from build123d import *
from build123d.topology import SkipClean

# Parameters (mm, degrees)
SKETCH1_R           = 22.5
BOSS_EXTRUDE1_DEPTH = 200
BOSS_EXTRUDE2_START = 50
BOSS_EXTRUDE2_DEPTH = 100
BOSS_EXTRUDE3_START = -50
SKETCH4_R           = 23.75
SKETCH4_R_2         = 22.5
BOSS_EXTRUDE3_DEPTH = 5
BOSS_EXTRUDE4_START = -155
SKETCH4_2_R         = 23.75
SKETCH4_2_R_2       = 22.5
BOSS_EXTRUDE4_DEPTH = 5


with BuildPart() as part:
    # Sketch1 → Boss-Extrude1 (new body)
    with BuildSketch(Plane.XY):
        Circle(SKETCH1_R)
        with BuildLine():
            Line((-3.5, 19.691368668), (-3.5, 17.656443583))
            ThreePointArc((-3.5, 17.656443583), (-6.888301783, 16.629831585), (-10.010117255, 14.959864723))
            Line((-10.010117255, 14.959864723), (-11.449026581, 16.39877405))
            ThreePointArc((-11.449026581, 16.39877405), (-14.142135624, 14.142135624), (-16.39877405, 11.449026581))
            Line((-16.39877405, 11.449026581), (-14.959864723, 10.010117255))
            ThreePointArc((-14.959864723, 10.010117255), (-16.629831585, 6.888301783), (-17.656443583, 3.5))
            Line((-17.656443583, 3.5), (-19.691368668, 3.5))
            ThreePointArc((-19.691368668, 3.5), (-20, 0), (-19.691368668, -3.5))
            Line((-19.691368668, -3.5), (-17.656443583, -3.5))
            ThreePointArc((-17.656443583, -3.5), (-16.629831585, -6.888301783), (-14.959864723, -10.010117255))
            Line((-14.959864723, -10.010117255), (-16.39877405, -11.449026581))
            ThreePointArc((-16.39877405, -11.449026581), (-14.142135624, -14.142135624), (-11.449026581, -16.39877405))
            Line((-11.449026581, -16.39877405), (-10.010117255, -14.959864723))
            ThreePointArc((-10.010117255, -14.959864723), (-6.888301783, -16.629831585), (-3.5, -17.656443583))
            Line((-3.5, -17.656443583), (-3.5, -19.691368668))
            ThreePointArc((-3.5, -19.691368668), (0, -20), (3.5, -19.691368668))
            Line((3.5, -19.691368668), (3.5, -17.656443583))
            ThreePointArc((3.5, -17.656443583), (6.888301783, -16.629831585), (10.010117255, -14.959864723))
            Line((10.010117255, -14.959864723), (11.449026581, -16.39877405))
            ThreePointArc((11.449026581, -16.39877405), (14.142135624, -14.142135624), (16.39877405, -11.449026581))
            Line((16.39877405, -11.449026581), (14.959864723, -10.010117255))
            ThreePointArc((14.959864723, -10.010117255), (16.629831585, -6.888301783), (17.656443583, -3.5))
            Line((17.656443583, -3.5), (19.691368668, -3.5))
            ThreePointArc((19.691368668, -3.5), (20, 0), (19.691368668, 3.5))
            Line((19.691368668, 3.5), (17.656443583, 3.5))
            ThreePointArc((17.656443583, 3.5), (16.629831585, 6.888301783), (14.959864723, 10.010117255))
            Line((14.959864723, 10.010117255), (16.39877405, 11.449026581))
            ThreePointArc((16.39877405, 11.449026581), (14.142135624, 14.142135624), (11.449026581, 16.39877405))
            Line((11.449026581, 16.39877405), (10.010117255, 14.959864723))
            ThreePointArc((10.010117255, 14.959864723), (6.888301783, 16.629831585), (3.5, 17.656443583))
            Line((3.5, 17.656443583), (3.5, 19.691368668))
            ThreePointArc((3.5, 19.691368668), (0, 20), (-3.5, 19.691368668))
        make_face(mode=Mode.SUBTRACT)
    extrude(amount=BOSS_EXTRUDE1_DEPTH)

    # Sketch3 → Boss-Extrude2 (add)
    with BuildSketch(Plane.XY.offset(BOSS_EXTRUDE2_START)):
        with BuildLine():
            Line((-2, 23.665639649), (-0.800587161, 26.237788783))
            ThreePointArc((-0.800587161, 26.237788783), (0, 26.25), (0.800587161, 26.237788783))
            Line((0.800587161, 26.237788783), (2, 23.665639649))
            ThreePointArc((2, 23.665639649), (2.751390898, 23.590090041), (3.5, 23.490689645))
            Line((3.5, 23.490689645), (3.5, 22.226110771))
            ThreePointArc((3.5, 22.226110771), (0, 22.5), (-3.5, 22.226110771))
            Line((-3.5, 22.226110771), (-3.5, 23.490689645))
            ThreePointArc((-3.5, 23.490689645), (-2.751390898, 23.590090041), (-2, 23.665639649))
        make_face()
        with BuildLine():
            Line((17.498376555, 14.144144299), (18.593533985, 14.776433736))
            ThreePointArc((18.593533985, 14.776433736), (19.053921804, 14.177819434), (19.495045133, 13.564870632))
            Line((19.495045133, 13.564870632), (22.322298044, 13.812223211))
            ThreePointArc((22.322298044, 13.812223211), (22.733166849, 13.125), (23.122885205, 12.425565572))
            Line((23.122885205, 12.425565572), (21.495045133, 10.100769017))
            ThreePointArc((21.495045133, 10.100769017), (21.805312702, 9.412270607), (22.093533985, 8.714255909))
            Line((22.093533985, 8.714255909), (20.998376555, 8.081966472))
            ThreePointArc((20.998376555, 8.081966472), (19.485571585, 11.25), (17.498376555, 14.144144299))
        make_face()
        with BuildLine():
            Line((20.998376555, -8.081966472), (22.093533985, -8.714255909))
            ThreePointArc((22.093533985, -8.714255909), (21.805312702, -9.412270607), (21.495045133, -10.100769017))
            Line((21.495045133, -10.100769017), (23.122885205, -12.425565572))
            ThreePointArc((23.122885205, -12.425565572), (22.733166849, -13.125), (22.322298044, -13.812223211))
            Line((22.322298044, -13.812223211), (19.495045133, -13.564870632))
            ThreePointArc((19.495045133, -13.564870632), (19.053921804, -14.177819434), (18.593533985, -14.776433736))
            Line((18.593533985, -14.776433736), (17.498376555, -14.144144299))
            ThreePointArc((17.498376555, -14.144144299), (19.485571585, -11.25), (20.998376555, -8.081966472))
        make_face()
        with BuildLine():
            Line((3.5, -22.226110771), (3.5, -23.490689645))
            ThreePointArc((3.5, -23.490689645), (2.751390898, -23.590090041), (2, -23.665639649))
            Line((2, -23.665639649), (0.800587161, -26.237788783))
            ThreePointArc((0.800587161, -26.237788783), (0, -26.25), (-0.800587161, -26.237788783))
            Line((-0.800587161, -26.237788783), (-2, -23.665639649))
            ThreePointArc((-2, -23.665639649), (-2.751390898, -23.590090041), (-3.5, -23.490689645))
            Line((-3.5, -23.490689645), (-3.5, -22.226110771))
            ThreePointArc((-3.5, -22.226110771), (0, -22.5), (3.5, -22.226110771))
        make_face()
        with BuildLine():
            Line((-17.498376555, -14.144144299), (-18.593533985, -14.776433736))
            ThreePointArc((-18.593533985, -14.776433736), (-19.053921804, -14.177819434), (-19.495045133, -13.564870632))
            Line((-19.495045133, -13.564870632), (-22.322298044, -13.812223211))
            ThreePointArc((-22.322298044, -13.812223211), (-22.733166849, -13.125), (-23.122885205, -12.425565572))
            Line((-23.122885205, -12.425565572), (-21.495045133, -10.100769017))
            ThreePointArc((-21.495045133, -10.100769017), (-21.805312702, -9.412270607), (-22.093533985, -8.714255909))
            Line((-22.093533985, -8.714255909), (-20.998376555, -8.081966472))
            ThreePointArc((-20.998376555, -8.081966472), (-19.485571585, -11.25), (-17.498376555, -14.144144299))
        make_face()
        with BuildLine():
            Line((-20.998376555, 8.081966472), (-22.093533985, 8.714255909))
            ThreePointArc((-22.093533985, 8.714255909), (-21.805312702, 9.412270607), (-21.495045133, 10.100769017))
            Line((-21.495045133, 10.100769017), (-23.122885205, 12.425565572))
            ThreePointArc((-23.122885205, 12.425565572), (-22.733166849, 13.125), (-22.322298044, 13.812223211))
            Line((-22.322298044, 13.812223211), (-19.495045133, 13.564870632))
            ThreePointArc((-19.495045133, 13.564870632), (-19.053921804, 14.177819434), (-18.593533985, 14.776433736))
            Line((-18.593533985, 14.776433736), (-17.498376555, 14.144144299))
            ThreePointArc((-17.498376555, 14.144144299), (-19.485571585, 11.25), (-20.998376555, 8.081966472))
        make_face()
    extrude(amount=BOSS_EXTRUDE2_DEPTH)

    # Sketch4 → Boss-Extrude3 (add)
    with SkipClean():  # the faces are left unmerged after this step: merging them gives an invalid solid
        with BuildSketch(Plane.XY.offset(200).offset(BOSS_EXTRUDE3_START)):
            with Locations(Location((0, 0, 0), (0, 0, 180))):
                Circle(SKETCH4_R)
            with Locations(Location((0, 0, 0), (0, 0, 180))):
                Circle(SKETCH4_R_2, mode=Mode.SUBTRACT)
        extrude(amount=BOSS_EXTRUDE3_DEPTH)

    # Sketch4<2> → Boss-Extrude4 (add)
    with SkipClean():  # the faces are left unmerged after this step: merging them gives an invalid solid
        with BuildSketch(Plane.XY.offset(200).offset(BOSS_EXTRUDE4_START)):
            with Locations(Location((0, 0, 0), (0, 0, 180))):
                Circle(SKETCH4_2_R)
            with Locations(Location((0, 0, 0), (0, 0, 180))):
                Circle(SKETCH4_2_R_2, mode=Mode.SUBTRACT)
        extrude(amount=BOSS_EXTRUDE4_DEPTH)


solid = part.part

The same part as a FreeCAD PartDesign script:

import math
import FreeCAD as App
import Part
import Sketcher

V = App.Vector
Q = App.Units.Quantity

doc = App.newDocument("Part")
body = doc.addObject("PartDesign::Body", "Body")

# Sketch on XY plane
sketch1 = body.newObject("Sketcher::SketchObject", "Sketch")
sketch1.AttachmentSupport = (doc.getObject("XY_Plane"), [""])
sketch1.MapMode = "FlatFace"
sketch1.addGeometry(Part.Circle(V(0, 0, 0), V(0, 0, 1), 22.5), False)
sketch1.addGeometry(Part.LineSegment(V(-3.5, 17.656444, 0), V(-3.5, 19.691369, 0)), False)
sketch1.addGeometry(Part.ArcOfCircle(Part.Circle(V(0, 0, 0), V(0, 0, 1), 20), math.radians(79.921342), math.radians(100.078658)), False)
sketch1.addGeometry(Part.LineSegment(V(3.5, 19.691369, 0), V(3.5, 17.656444, 0)), False)
sketch1.addGeometry(Part.ArcOfCircle(Part.Circle(V(0, 0, 0), V(0, 0, 1), 18), math.radians(56.212271), math.radians(78.787729)), False)
sketch1.addGeometry(Part.LineSegment(V(10.010117, 14.959865, 0), V(11.449027, 16.398774, 0)), False)
sketch1.addGeometry(Part.ArcOfCircle(Part.Circle(V(0, 0, 0), V(0, 0, 1), 20), math.radians(34.921342), math.radians(55.078658)), False)
sketch1.addGeometry(Part.LineSegment(V(16.398774, 11.449027, 0), V(14.959865, 10.010117, 0)), False)
sketch1.addGeometry(Part.ArcOfCircle(Part.Circle(V(0, 0, 0), V(0, 0, 1), 18), math.radians(11.212271), math.radians(33.787729)), False)
sketch1.addGeometry(Part.LineSegment(V(17.656444, 3.5, 0), V(19.691369, 3.5, 0)), False)
sketch1.addGeometry(Part.ArcOfCircle(Part.Circle(V(0, 0, 0), V(0, 0, 1), 20), math.radians(-10.078658), math.radians(10.078658)), False)
sketch1.addGeometry(Part.LineSegment(V(19.691369, -3.5, 0), V(17.656444, -3.5, 0)), False)
sketch1.addGeometry(Part.ArcOfCircle(Part.Circle(V(0, 0, 0), V(0, 0, 1), 18), math.radians(-33.787729), math.radians(-11.212271)), False)
sketch1.addGeometry(Part.LineSegment(V(14.959865, -10.010117, 0), V(16.398774, -11.449027, 0)), False)
sketch1.addGeometry(Part.ArcOfCircle(Part.Circle(V(0, 0, 0), V(0, 0, 1), 20), math.radians(-55.078658), math.radians(-34.921342)), False)
sketch1.addGeometry(Part.LineSegment(V(11.449027, -16.398774, 0), V(10.010117, -14.959865, 0)), False)
sketch1.addGeometry(Part.ArcOfCircle(Part.Circle(V(0, 0, 0), V(0, 0, 1), 18), math.radians(-78.787729), math.radians(-56.212271)), False)
sketch1.addGeometry(Part.LineSegment(V(3.5, -17.656444, 0), V(3.5, -19.691369, 0)), False)
sketch1.addGeometry(Part.ArcOfCircle(Part.Circle(V(0, 0, 0), V(0, 0, 1), 20), math.radians(-100.078658), math.radians(-79.921342)), False)
sketch1.addGeometry(Part.LineSegment(V(-3.5, -19.691369, 0), V(-3.5, -17.656444, 0)), False)
sketch1.addGeometry(Part.ArcOfCircle(Part.Circle(V(0, 0, 0), V(0, 0, 1), 18), math.radians(-123.787729), math.radians(-101.212271)), False)
sketch1.addGeometry(Part.LineSegment(V(-10.010117, -14.959865, 0), V(-11.449027, -16.398774, 0)), False)
sketch1.addGeometry(Part.ArcOfCircle(Part.Circle(V(0, 0, 0), V(0, 0, 1), 20), math.radians(-145.078658), math.radians(-124.921342)), False)
sketch1.addGeometry(Part.LineSegment(V(-16.398774, -11.449027, 0), V(-14.959865, -10.010117, 0)), False)
sketch1.addGeometry(Part.ArcOfCircle(Part.Circle(V(0, 0, 0), V(0, 0, 1), 18), math.radians(-168.787729), math.radians(-146.212271)), False)
sketch1.addGeometry(Part.LineSegment(V(-17.656444, -3.5, 0), V(-19.691369, -3.5, 0)), False)
sketch1.addGeometry(Part.ArcOfCircle(Part.Circle(V(0, 0, 0), V(0, 0, 1), 20), math.radians(169.921342), math.radians(190.078658)), False)
sketch1.addGeometry(Part.LineSegment(V(-19.691369, 3.5, 0), V(-17.656444, 3.5, 0)), False)
sketch1.addGeometry(Part.ArcOfCircle(Part.Circle(V(0, 0, 0), V(0, 0, 1), 18), math.radians(146.212271), math.radians(168.787729)), False)
sketch1.addGeometry(Part.LineSegment(V(-14.959865, 10.010117, 0), V(-16.398774, 11.449027, 0)), False)
sketch1.addGeometry(Part.ArcOfCircle(Part.Circle(V(0, 0, 0), V(0, 0, 1), 20), math.radians(124.921342), math.radians(145.078658)), False)
sketch1.addGeometry(Part.LineSegment(V(-11.449027, 16.398774, 0), V(-10.010117, 14.959865, 0)), False)
sketch1.addGeometry(Part.ArcOfCircle(Part.Circle(V(0, 0, 0), V(0, 0, 1), 18), math.radians(101.212271), math.radians(123.787729)), False)
sketch1.addConstraint(Sketcher.Constraint("Coincident", 1, 2, 2, 2))
sketch1.addConstraint(Sketcher.Constraint("Coincident", 2, 1, 3, 1))
sketch1.addConstraint(Sketcher.Constraint("Coincident", 3, 2, 4, 2))
sketch1.addConstraint(Sketcher.Constraint("Coincident", 4, 1, 5, 1))
sketch1.addConstraint(Sketcher.Constraint("Coincident", 5, 2, 6, 2))
sketch1.addConstraint(Sketcher.Constraint("Coincident", 6, 1, 7, 1))
sketch1.addConstraint(Sketcher.Constraint("Coincident", 7, 2, 8, 2))
sketch1.addConstraint(Sketcher.Constraint("Coincident", 8, 1, 9, 1))
sketch1.addConstraint(Sketcher.Constraint("Coincident", 9, 2, 10, 2))
sketch1.addConstraint(Sketcher.Constraint("Coincident", 10, 1, 11, 1))
sketch1.addConstraint(Sketcher.Constraint("Coincident", 11, 2, 12, 2))
sketch1.addConstraint(Sketcher.Constraint("Coincident", 12, 1, 13, 1))
sketch1.addConstraint(Sketcher.Constraint("Coincident", 13, 2, 14, 2))
sketch1.addConstraint(Sketcher.Constraint("Coincident", 14, 1, 15, 1))
sketch1.addConstraint(Sketcher.Constraint("Coincident", 15, 2, 16, 2))
sketch1.addConstraint(Sketcher.Constraint("Coincident", 16, 1, 17, 1))
sketch1.addConstraint(Sketcher.Constraint("Coincident", 17, 2, 18, 2))
sketch1.addConstraint(Sketcher.Constraint("Coincident", 18, 1, 19, 1))
sketch1.addConstraint(Sketcher.Constraint("Coincident", 19, 2, 20, 2))
sketch1.addConstraint(Sketcher.Constraint("Coincident", 20, 1, 21, 1))
sketch1.addConstraint(Sketcher.Constraint("Coincident", 21, 2, 22, 2))
sketch1.addConstraint(Sketcher.Constraint("Coincident", 22, 1, 23, 1))
sketch1.addConstraint(Sketcher.Constraint("Coincident", 23, 2, 24, 2))
sketch1.addConstraint(Sketcher.Constraint("Coincident", 24, 1, 25, 1))
sketch1.addConstraint(Sketcher.Constraint("Coincident", 25, 2, 26, 2))
sketch1.addConstraint(Sketcher.Constraint("Coincident", 26, 1, 27, 1))
sketch1.addConstraint(Sketcher.Constraint("Coincident", 27, 2, 28, 2))
sketch1.addConstraint(Sketcher.Constraint("Coincident", 28, 1, 29, 1))
sketch1.addConstraint(Sketcher.Constraint("Coincident", 29, 2, 30, 2))
sketch1.addConstraint(Sketcher.Constraint("Coincident", 30, 1, 31, 1))
sketch1.addConstraint(Sketcher.Constraint("Coincident", 31, 2, 32, 2))
sketch1.addConstraint(Sketcher.Constraint("Coincident", 32, 1, 1, 1))
sketch1.addConstraint(Sketcher.Constraint("Vertical", 1))
sketch1.addConstraint(Sketcher.Constraint("Vertical", 3))
sketch1.addConstraint(Sketcher.Constraint("Horizontal", 9))
sketch1.addConstraint(Sketcher.Constraint("Horizontal", 11))
sketch1.addConstraint(Sketcher.Constraint("Vertical", 17))
sketch1.addConstraint(Sketcher.Constraint("Vertical", 19))
sketch1.addConstraint(Sketcher.Constraint("Horizontal", 25))
sketch1.addConstraint(Sketcher.Constraint("Horizontal", 27))
sketch1.addConstraint(Sketcher.Constraint("Coincident", 0, 3, -1, 1))
sketch1.addConstraint(Sketcher.Constraint("Coincident", 2, 3, -1, 1))
sketch1.addConstraint(Sketcher.Constraint("Coincident", 4, 3, -1, 1))
sketch1.addConstraint(Sketcher.Constraint("Coincident", 6, 3, -1, 1))
sketch1.addConstraint(Sketcher.Constraint("Coincident", 8, 3, -1, 1))
sketch1.addConstraint(Sketcher.Constraint("Coincident", 10, 3, -1, 1))
sketch1.addConstraint(Sketcher.Constraint("Coincident", 12, 3, -1, 1))
sketch1.addConstraint(Sketcher.Constraint("Coincident", 14, 3, -1, 1))
sketch1.addConstraint(Sketcher.Constraint("Coincident", 16, 3, -1, 1))
sketch1.addConstraint(Sketcher.Constraint("Coincident", 18, 3, -1, 1))
sketch1.addConstraint(Sketcher.Constraint("Coincident", 20, 3, -1, 1))
sketch1.addConstraint(Sketcher.Constraint("Coincident", 22, 3, -1, 1))
sketch1.addConstraint(Sketcher.Constraint("Coincident", 24, 3, -1, 1))
sketch1.addConstraint(Sketcher.Constraint("Coincident", 26, 3, -1, 1))
sketch1.addConstraint(Sketcher.Constraint("Coincident", 28, 3, -1, 1))
sketch1.addConstraint(Sketcher.Constraint("Coincident", 30, 3, -1, 1))
sketch1.addConstraint(Sketcher.Constraint("Coincident", 32, 3, -1, 1))
sketch1.addConstraint(Sketcher.Constraint("Equal", 2, 6))
sketch1.addConstraint(Sketcher.Constraint("Equal", 4, 8))
sketch1.addConstraint(Sketcher.Constraint("Equal", 6, 10))
sketch1.addConstraint(Sketcher.Constraint("Equal", 8, 12))
sketch1.addConstraint(Sketcher.Constraint("Equal", 10, 14))
sketch1.addConstraint(Sketcher.Constraint("Equal", 12, 16))
sketch1.addConstraint(Sketcher.Constraint("Equal", 14, 18))
sketch1.addConstraint(Sketcher.Constraint("Equal", 16, 20))
sketch1.addConstraint(Sketcher.Constraint("Equal", 18, 22))
sketch1.addConstraint(Sketcher.Constraint("Equal", 20, 24))
sketch1.addConstraint(Sketcher.Constraint("Equal", 22, 26))
sketch1.addConstraint(Sketcher.Constraint("Equal", 24, 28))
sketch1.addConstraint(Sketcher.Constraint("Equal", 26, 30))
sketch1.addConstraint(Sketcher.Constraint("Equal", 28, 32))
sketch1.addConstraint(Sketcher.Constraint("Parallel", 5, 7))
sketch1.addConstraint(Sketcher.Constraint("Perpendicular", 7, 13))
sketch1.addConstraint(Sketcher.Constraint("Parallel", 13, 15))
sketch1.addConstraint(Sketcher.Constraint("Perpendicular", 15, 21))
sketch1.addConstraint(Sketcher.Constraint("Parallel", 21, 23))
sketch1.addConstraint(Sketcher.Constraint("Perpendicular", 23, 29))
sketch1.addConstraint(Sketcher.Constraint("Parallel", 29, 31))
sketch1.addConstraint(Sketcher.Constraint("Horizontal", 1, 2, 2, 1))
sketch1.addConstraint(Sketcher.Constraint("Horizontal", 17, 2, 18, 1))
sketch1.addConstraint(Sketcher.Constraint("Horizontal", 15, 2, 20, 1))
sketch1.addConstraint(Sketcher.Constraint("Horizontal", 14, 1, 21, 2))
sketch1.addConstraint(Sketcher.Constraint("Horizontal", 13, 2, 22, 1))
sketch1.addConstraint(Sketcher.Constraint("Horizontal", 11, 2, 24, 1))
sketch1.addConstraint(Sketcher.Constraint("Horizontal", 9, 2, 26, 1))
sketch1.addConstraint(Sketcher.Constraint("Horizontal", 7, 2, 28, 1))
sketch1.addConstraint(Sketcher.Constraint("Horizontal", 5, 2, 30, 1))
sketch1.addConstraint(Sketcher.Constraint("Vertical", 9, 2, 10, 1))
sketch1.addConstraint(Sketcher.Constraint("Vertical", 7, 2, 12, 1))
sketch1.addConstraint(Sketcher.Constraint("Vertical", 5, 2, 14, 1))
sketch1.addConstraint(Sketcher.Constraint("Vertical", 3, 2, 16, 1))
sketch1.addConstraint(Sketcher.Constraint("Equal", 27, 1))
sketch1.addConstraint(Sketcher.Constraint("Equal", 5, 7))
sketch1.addConstraint(Sketcher.Constraint("Diameter", 0, 45.0))
sketch1.addConstraint(Sketcher.Constraint("Radius", 2, 20.0))
sketch1.addConstraint(Sketcher.Constraint("Radius", 4, 18.0))
sketch1.addConstraint(Sketcher.Constraint("DistanceX", 1, 2, 2, 1, 7.0))
sketch1.addConstraint(Sketcher.Constraint("DistanceY", 4, 1, 3, 2, 2.696579))
pad1 = body.newObject("PartDesign::Pad", "Pad")
pad1.Profile = sketch1
pad1.Length = 200

# Sketch on XY plane
sketch2 = body.newObject("Sketcher::SketchObject", "Sketch001")
sketch2.AttachmentSupport = (doc.getObject("XY_Plane"), [""])
sketch2.MapMode = "FlatFace"
sketch2.AttachmentOffset = App.Placement(V(0, 0, 50), App.Rotation())
sketch2.addGeometry(Part.LineSegment(V(-0.800587, 26.237789, 0), V(-2, 23.66564, 0)), False)
sketch2.addGeometry(Part.ArcOfCircle(Part.Circle(V(0, 0.000001, 0), V(0, 0, 1), 23.749999), math.radians(94.830629), math.radians(98.474453)), False)
sketch2.addGeometry(Part.LineSegment(V(-3.5, 23.49069, 0), V(-3.5, 22.226111, 0)), False)
sketch2.addGeometry(Part.ArcOfCircle(Part.Circle(V(0, 0, 0), V(0, 0, 1), 22.5), math.radians(81.050982), math.radians(98.949018)), False)
sketch2.addGeometry(Part.LineSegment(V(3.5, 22.226111, 0), V(3.5, 23.49069, 0)), False)
sketch2.addGeometry(Part.ArcOfCircle(Part.Circle(V(0, 0.000001, 0), V(0, 0, 1), 23.749999), math.radians(81.525547), math.radians(85.169371)), False)
sketch2.addGeometry(Part.LineSegment(V(2, 23.66564, 0), V(0.800587, 26.237789, 0)), False)
sketch2.addGeometry(Part.ArcOfCircle(Part.Circle(V(0, -0.000001, 0), V(0, 0, 1), 26.250001), math.radians(88.25229), math.radians(91.74771)), False)
sketch2.addGeometry(Part.LineSegment(V(18.593534, 14.776434, 0), V(17.498377, 14.144144, 0)), False)
sketch2.addGeometry(Part.ArcOfCircle(Part.Circle(V(0, 0, 0), V(0, 0, 1), 22.5), math.radians(21.050982), math.radians(38.949018)), False)
sketch2.addGeometry(Part.LineSegment(V(20.998377, 8.081966, 0), V(22.093534, 8.714256, 0)), False)
sketch2.addGeometry(Part.ArcOfCircle(Part.Circle(V(0, 0, 0), V(0, 0, 1), 23.749999), math.radians(21.525547), math.radians(25.169371)), False)
sketch2.addGeometry(Part.LineSegment(V(21.495045, 10.100769, 0), V(23.122885, 12.425566, 0)), False)
sketch2.addGeometry(Part.ArcOfCircle(Part.Circle(V(0, 0, 0), V(0, 0, 1), 26.25), math.radians(28.25229), math.radians(31.74771)), False)
sketch2.addGeometry(Part.LineSegment(V(22.322298, 13.812223, 0), V(19.495045, 13.564871, 0)), False)
sketch2.addGeometry(Part.ArcOfCircle(Part.Circle(V(0, 0, 0), V(0, 0, 1), 23.749999), math.radians(34.830629), math.radians(38.474453)), False)
sketch2.addGeometry(Part.LineSegment(V(22.093534, -8.714256, 0), V(20.998377, -8.081966, 0)), False)
sketch2.addGeometry(Part.ArcOfCircle(Part.Circle(V(0, 0, 0), V(0, 0, 1), 22.5), math.radians(-38.949018), math.radians(-21.050982)), False)
sketch2.addGeometry(Part.LineSegment(V(17.498377, -14.144144, 0), V(18.593534, -14.776434, 0)), False)
sketch2.addGeometry(Part.ArcOfCircle(Part.Circle(V(0, 0, 0), V(0, 0, 1), 23.749999), math.radians(-38.474453), math.radians(-34.830629)), False)
sketch2.addGeometry(Part.LineSegment(V(19.495045, -13.564871, 0), V(22.322298, -13.812223, 0)), False)
sketch2.addGeometry(Part.ArcOfCircle(Part.Circle(V(0, 0, 0), V(0, 0, 1), 26.25), math.radians(-31.74771), math.radians(-28.25229)), False)
sketch2.addGeometry(Part.LineSegment(V(23.122885, -12.425566, 0), V(21.495045, -10.100769, 0)), False)
sketch2.addGeometry(Part.ArcOfCircle(Part.Circle(V(0, 0, 0), V(0, 0, 1), 23.749999), math.radians(-25.169371), math.radians(-21.525547)), False)
sketch2.addGeometry(Part.LineSegment(V(3.5, -23.49069, 0), V(3.5, -22.226111, 0)), False)
sketch2.addGeometry(Part.ArcOfCircle(Part.Circle(V(0, 0, 0), V(0, 0, 1), 22.5), math.radians(-98.949018), math.radians(-81.050982)), False)
sketch2.addGeometry(Part.LineSegment(V(-3.5, -22.226111, 0), V(-3.5, -23.49069, 0)), False)
sketch2.addGeometry(Part.ArcOfCircle(Part.Circle(V(0, -0.000001, 0), V(0, 0, 1), 23.749999), math.radians(-98.474453), math.radians(-94.830629)), False)
sketch2.addGeometry(Part.LineSegment(V(-2, -23.66564, 0), V(-0.800587, -26.237789, 0)), False)
sketch2.addGeometry(Part.ArcOfCircle(Part.Circle(V(0, 0.000001, 0), V(0, 0, 1), 26.250001), math.radians(-91.74771), math.radians(-88.25229)), False)
sketch2.addGeometry(Part.LineSegment(V(0.800587, -26.237789, 0), V(2, -23.66564, 0)), False)
sketch2.addGeometry(Part.ArcOfCircle(Part.Circle(V(0, -0.000001, 0), V(0, 0, 1), 23.749999), math.radians(-85.169371), math.radians(-81.525547)), False)
sketch2.addGeometry(Part.LineSegment(V(-18.593534, -14.776434, 0), V(-17.498377, -14.144144, 0)), False)
sketch2.addGeometry(Part.ArcOfCircle(Part.Circle(V(0, 0, 0), V(0, 0, 1), 22.5), math.radians(-158.949018), math.radians(-141.050982)), False)
sketch2.addGeometry(Part.LineSegment(V(-20.998377, -8.081966, 0), V(-22.093534, -8.714256, 0)), False)
sketch2.addGeometry(Part.ArcOfCircle(Part.Circle(V(0, 0, 0), V(0, 0, 1), 23.749999), math.radians(-158.474453), math.radians(-154.830629)), False)
sketch2.addGeometry(Part.LineSegment(V(-21.495045, -10.100769, 0), V(-23.122885, -12.425566, 0)), False)
sketch2.addGeometry(Part.ArcOfCircle(Part.Circle(V(0, 0, 0), V(0, 0, 1), 26.25), math.radians(-151.74771), math.radians(-148.25229)), False)
sketch2.addGeometry(Part.LineSegment(V(-22.322298, -13.812223, 0), V(-19.495045, -13.564871, 0)), False)
sketch2.addGeometry(Part.ArcOfCircle(Part.Circle(V(0, 0, 0), V(0, 0, 1), 23.749999), math.radians(-145.169371), math.radians(-141.525547)), False)
sketch2.addGeometry(Part.LineSegment(V(-22.093534, 8.714256, 0), V(-20.998377, 8.081966, 0)), False)
sketch2.addGeometry(Part.ArcOfCircle(Part.Circle(V(0, 0, 0), V(0, 0, 1), 22.5), math.radians(141.050982), math.radians(158.949018)), False)
sketch2.addGeometry(Part.LineSegment(V(-17.498377, 14.144144, 0), V(-18.593534, 14.776434, 0)), False)
sketch2.addGeometry(Part.ArcOfCircle(Part.Circle(V(0, 0, 0), V(0, 0, 1), 23.749999), math.radians(141.525547), math.radians(145.169371)), False)
sketch2.addGeometry(Part.LineSegment(V(-19.495045, 13.564871, 0), V(-22.322298, 13.812223, 0)), False)
sketch2.addGeometry(Part.ArcOfCircle(Part.Circle(V(0, 0, 0), V(0, 0, 1), 26.25), math.radians(148.25229), math.radians(151.74771)), False)
sketch2.addGeometry(Part.LineSegment(V(-23.122885, 12.425566, 0), V(-21.495045, 10.100769, 0)), False)
sketch2.addGeometry(Part.ArcOfCircle(Part.Circle(V(0, 0, 0), V(0, 0, 1), 23.749999), math.radians(154.830629), math.radians(158.474453)), False)
sketch2.addConstraint(Sketcher.Constraint("Coincident", 0, 2, 1, 1))
sketch2.addConstraint(Sketcher.Constraint("Coincident", 1, 2, 2, 1))
sketch2.addConstraint(Sketcher.Constraint("Coincident", 2, 2, 3, 2))
sketch2.addConstraint(Sketcher.Constraint("Coincident", 3, 1, 4, 1))
sketch2.addConstraint(Sketcher.Constraint("Coincident", 4, 2, 5, 1))
sketch2.addConstraint(Sketcher.Constraint("Coincident", 5, 2, 6, 1))
sketch2.addConstraint(Sketcher.Constraint("Coincident", 6, 2, 7, 1))
sketch2.addConstraint(Sketcher.Constraint("Coincident", 7, 2, 0, 1))
sketch2.addConstraint(Sketcher.Constraint("Coincident", 8, 2, 9, 2))
sketch2.addConstraint(Sketcher.Constraint("Coincident", 9, 1, 10, 1))
sketch2.addConstraint(Sketcher.Constraint("Coincident", 10, 2, 11, 1))
sketch2.addConstraint(Sketcher.Constraint("Coincident", 11, 2, 12, 1))
sketch2.addConstraint(Sketcher.Constraint("Coincident", 12, 2, 13, 1))
sketch2.addConstraint(Sketcher.Constraint("Coincident", 13, 2, 14, 1))
sketch2.addConstraint(Sketcher.Constraint("Coincident", 14, 2, 15, 1))
sketch2.addConstraint(Sketcher.Constraint("Coincident", 15, 2, 8, 1))
sketch2.addConstraint(Sketcher.Constraint("Coincident", 16, 2, 17, 2))
sketch2.addConstraint(Sketcher.Constraint("Coincident", 17, 1, 18, 1))
sketch2.addConstraint(Sketcher.Constraint("Coincident", 18, 2, 19, 1))
sketch2.addConstraint(Sketcher.Constraint("Coincident", 19, 2, 20, 1))
sketch2.addConstraint(Sketcher.Constraint("Coincident", 20, 2, 21, 1))
sketch2.addConstraint(Sketcher.Constraint("Coincident", 21, 2, 22, 1))
sketch2.addConstraint(Sketcher.Constraint("Coincident", 22, 2, 23, 1))
sketch2.addConstraint(Sketcher.Constraint("Coincident", 23, 2, 16, 1))
sketch2.addConstraint(Sketcher.Constraint("Coincident", 24, 2, 25, 2))
sketch2.addConstraint(Sketcher.Constraint("Coincident", 25, 1, 26, 1))
sketch2.addConstraint(Sketcher.Constraint("Coincident", 26, 2, 27, 1))
sketch2.addConstraint(Sketcher.Constraint("Coincident", 27, 2, 28, 1))
sketch2.addConstraint(Sketcher.Constraint("Coincident", 28, 2, 29, 1))
sketch2.addConstraint(Sketcher.Constraint("Coincident", 29, 2, 30, 1))
sketch2.addConstraint(Sketcher.Constraint("Coincident", 30, 2, 31, 1))
sketch2.addConstraint(Sketcher.Constraint("Coincident", 31, 2, 24, 1))
sketch2.addConstraint(Sketcher.Constraint("Coincident", 32, 2, 33, 2))
sketch2.addConstraint(Sketcher.Constraint("Coincident", 33, 1, 34, 1))
sketch2.addConstraint(Sketcher.Constraint("Coincident", 34, 2, 35, 1))
sketch2.addConstraint(Sketcher.Constraint("Coincident", 35, 2, 36, 1))
sketch2.addConstraint(Sketcher.Constraint("Coincident", 36, 2, 37, 1))
sketch2.addConstraint(Sketcher.Constraint("Coincident", 37, 2, 38, 1))
sketch2.addConstraint(Sketcher.Constraint("Coincident", 38, 2, 39, 1))
sketch2.addConstraint(Sketcher.Constraint("Coincident", 39, 2, 32, 1))
sketch2.addConstraint(Sketcher.Constraint("Coincident", 40, 2, 41, 2))
sketch2.addConstraint(Sketcher.Constraint("Coincident", 41, 1, 42, 1))
sketch2.addConstraint(Sketcher.Constraint("Coincident", 42, 2, 43, 1))
sketch2.addConstraint(Sketcher.Constraint("Coincident", 43, 2, 44, 1))
sketch2.addConstraint(Sketcher.Constraint("Coincident", 44, 2, 45, 1))
sketch2.addConstraint(Sketcher.Constraint("Coincident", 45, 2, 46, 1))
sketch2.addConstraint(Sketcher.Constraint("Coincident", 46, 2, 47, 1))
sketch2.addConstraint(Sketcher.Constraint("Coincident", 47, 2, 40, 1))
sketch2.addConstraint(Sketcher.Constraint("Vertical", 2))
sketch2.addConstraint(Sketcher.Constraint("Vertical", 4))
sketch2.addConstraint(Sketcher.Constraint("Vertical", 24))
sketch2.addConstraint(Sketcher.Constraint("Vertical", 26))
sketch2.addConstraint(Sketcher.Constraint("Coincident", 1, 3, -1, 1))
sketch2.addConstraint(Sketcher.Constraint("Coincident", 3, 3, -1, 1))
sketch2.addConstraint(Sketcher.Constraint("Coincident", 5, 3, -1, 1))
sketch2.addConstraint(Sketcher.Constraint("Coincident", 7, 3, -1, 1))
sketch2.addConstraint(Sketcher.Constraint("Coincident", 9, 3, -1, 1))
sketch2.addConstraint(Sketcher.Constraint("Coincident", 11, 3, -1, 1))
sketch2.addConstraint(Sketcher.Constraint("Coincident", 13, 3, -1, 1))
sketch2.addConstraint(Sketcher.Constraint("Coincident", 15, 3, -1, 1))
sketch2.addConstraint(Sketcher.Constraint("Coincident", 17, 3, -1, 1))
sketch2.addConstraint(Sketcher.Constraint("Coincident", 19, 3, -1, 1))
sketch2.addConstraint(Sketcher.Constraint("Coincident", 21, 3, -1, 1))
sketch2.addConstraint(Sketcher.Constraint("Coincident", 23, 3, -1, 1))
sketch2.addConstraint(Sketcher.Constraint("Coincident", 25, 3, -1, 1))
sketch2.addConstraint(Sketcher.Constraint("Coincident", 27, 3, -1, 1))
sketch2.addConstraint(Sketcher.Constraint("Coincident", 29, 3, -1, 1))
sketch2.addConstraint(Sketcher.Constraint("Coincident", 31, 3, -1, 1))
sketch2.addConstraint(Sketcher.Constraint("Coincident", 33, 3, -1, 1))
sketch2.addConstraint(Sketcher.Constraint("Coincident", 35, 3, -1, 1))
sketch2.addConstraint(Sketcher.Constraint("Coincident", 37, 3, -1, 1))
sketch2.addConstraint(Sketcher.Constraint("Coincident", 39, 3, -1, 1))
sketch2.addConstraint(Sketcher.Constraint("Coincident", 41, 3, -1, 1))
sketch2.addConstraint(Sketcher.Constraint("Coincident", 43, 3, -1, 1))
sketch2.addConstraint(Sketcher.Constraint("Coincident", 45, 3, -1, 1))
sketch2.addConstraint(Sketcher.Constraint("Coincident", 47, 3, -1, 1))
sketch2.addConstraint(Sketcher.Constraint("Equal", 1, 5))
sketch2.addConstraint(Sketcher.Constraint("Equal", 3, 9))
sketch2.addConstraint(Sketcher.Constraint("Equal", 5, 11))
sketch2.addConstraint(Sketcher.Constraint("Equal", 7, 13))
sketch2.addConstraint(Sketcher.Constraint("Equal", 11, 15))
sketch2.addConstraint(Sketcher.Constraint("Equal", 9, 17))
sketch2.addConstraint(Sketcher.Constraint("Equal", 15, 19))
sketch2.addConstraint(Sketcher.Constraint("Equal", 13, 21))
sketch2.addConstraint(Sketcher.Constraint("Equal", 19, 23))
sketch2.addConstraint(Sketcher.Constraint("Equal", 17, 25))
sketch2.addConstraint(Sketcher.Constraint("Equal", 23, 27))
sketch2.addConstraint(Sketcher.Constraint("Equal", 21, 29))
sketch2.addConstraint(Sketcher.Constraint("Equal", 27, 31))
sketch2.addConstraint(Sketcher.Constraint("Equal", 25, 33))
sketch2.addConstraint(Sketcher.Constraint("Equal", 31, 35))
sketch2.addConstraint(Sketcher.Constraint("Equal", 29, 37))
sketch2.addConstraint(Sketcher.Constraint("Equal", 35, 39))
sketch2.addConstraint(Sketcher.Constraint("Equal", 33, 41))
sketch2.addConstraint(Sketcher.Constraint("Equal", 39, 43))
sketch2.addConstraint(Sketcher.Constraint("Equal", 37, 45))
sketch2.addConstraint(Sketcher.Constraint("Equal", 43, 47))
sketch2.addConstraint(Sketcher.Constraint("Parallel", 8, 10))
sketch2.addConstraint(Sketcher.Constraint("Parallel", 16, 18))
sketch2.addConstraint(Sketcher.Constraint("Parallel", 6, 28))
sketch2.addConstraint(Sketcher.Constraint("Parallel", 0, 30))
sketch2.addConstraint(Sketcher.Constraint("Parallel", 10, 32))
sketch2.addConstraint(Sketcher.Constraint("Parallel", 32, 34))
sketch2.addConstraint(Sketcher.Constraint("Parallel", 12, 36))
sketch2.addConstraint(Sketcher.Constraint("Parallel", 14, 38))
sketch2.addConstraint(Sketcher.Constraint("Parallel", 18, 40))
sketch2.addConstraint(Sketcher.Constraint("Parallel", 40, 42))
sketch2.addConstraint(Sketcher.Constraint("Parallel", 20, 44))
sketch2.addConstraint(Sketcher.Constraint("Parallel", 22, 46))
sketch2.addConstraint(Sketcher.Constraint("Horizontal", 2, 2, 3, 1))
sketch2.addConstraint(Sketcher.Constraint("Horizontal", 0, 2, 5, 2))
sketch2.addConstraint(Sketcher.Constraint("Horizontal", 6, 2, 7, 2))
sketch2.addConstraint(Sketcher.Constraint("Horizontal", 24, 2, 25, 1))
sketch2.addConstraint(Sketcher.Constraint("Horizontal", 28, 2, 29, 2))
sketch2.addConstraint(Sketcher.Constraint("Horizontal", 17, 1, 32, 2))
sketch2.addConstraint(Sketcher.Constraint("Horizontal", 16, 2, 33, 1))
sketch2.addConstraint(Sketcher.Constraint("Horizontal", 23, 2, 34, 2))
sketch2.addConstraint(Sketcher.Constraint("Horizontal", 22, 2, 35, 2))
sketch2.addConstraint(Sketcher.Constraint("Horizontal", 21, 2, 36, 2))
sketch2.addConstraint(Sketcher.Constraint("Horizontal", 20, 2, 37, 2))
sketch2.addConstraint(Sketcher.Constraint("Horizontal", 19, 2, 38, 2))
sketch2.addConstraint(Sketcher.Constraint("Horizontal", 9, 1, 40, 2))
sketch2.addConstraint(Sketcher.Constraint("Horizontal", 8, 2, 41, 1))
sketch2.addConstraint(Sketcher.Constraint("Horizontal", 14, 2, 43, 2))
sketch2.addConstraint(Sketcher.Constraint("Horizontal", 12, 2, 45, 2))
sketch2.addConstraint(Sketcher.Constraint("Vertical", 9, 1, 16, 2))
sketch2.addConstraint(Sketcher.Constraint("Vertical", 8, 2, 17, 1))
sketch2.addConstraint(Sketcher.Constraint("Vertical", 14, 2, 19, 2))
sketch2.addConstraint(Sketcher.Constraint("Vertical", 12, 2, 21, 2))
sketch2.addConstraint(Sketcher.Constraint("Vertical", 4, 2, 24, 2))
sketch2.addConstraint(Sketcher.Constraint("Vertical", 0, 2, 27, 2))
sketch2.addConstraint(Sketcher.Constraint("Equal", 8, 10))
sketch2.addConstraint(Sketcher.Constraint("Equal", 6, 12))
sketch2.addConstraint(Sketcher.Constraint("Equal", 12, 14))
sketch2.addConstraint(Sketcher.Constraint("Radius", 3, 22.5))
sketch2.addConstraint(Sketcher.Constraint("Angle", 0, Q("-115 deg")))
sketch2.addConstraint(Sketcher.Constraint("Angle", 8, Q("-150 deg")))
sketch2.addConstraint(Sketcher.Constraint("Angle", 12, Q("55 deg")))
sketch2.addConstraint(Sketcher.Constraint("Angle", 14, Q("-175 deg")))
sketch2.addConstraint(Sketcher.Constraint("Radius", 1, 23.749999))
sketch2.addConstraint(Sketcher.Constraint("Radius", 7, 26.250001))
sketch2.addConstraint(Sketcher.Constraint("DistanceX", 0, 2, -1, 1, 2.0))
sketch2.addConstraint(Sketcher.Constraint("DistanceX", 1, 2, -1, 1, 3.5))
sketch2.addConstraint(Sketcher.Constraint("DistanceX", -1, 1, 8, 2, 17.498377))
pad2 = body.newObject("PartDesign::Pad", "Pad001")
pad2.Profile = sketch2
pad2.Length = 100

# Sketch on XY plane
sketch3 = body.newObject("Sketcher::SketchObject", "Sketch002")
sketch3.AttachmentSupport = (doc.getObject("XY_Plane"), [""])
sketch3.MapMode = "FlatFace"
sketch3.AttachmentOffset = App.Placement(V(0, 0, 150), App.Rotation())
sketch3.addGeometry(Part.Circle(V(0, 0, 0), V(0, 0, 1), 23.75), False)
sketch3.addGeometry(Part.Circle(V(0, 0, 0), V(0, 0, 1), 22.5), False)
sketch3.addConstraint(Sketcher.Constraint("Coincident", 0, 3, -1, 1))
sketch3.addConstraint(Sketcher.Constraint("Coincident", 1, 3, -1, 1))
sketch3.addConstraint(Sketcher.Constraint("Diameter", 1, 45.0))
sketch3.addConstraint(Sketcher.Constraint("Diameter", 0, 47.5))
pad3 = body.newObject("PartDesign::Pad", "Pad002")
pad3.Profile = sketch3
pad3.Length = 5

# Sketch on XY plane
sketch4 = body.newObject("Sketcher::SketchObject", "Sketch003")
sketch4.AttachmentSupport = (doc.getObject("XY_Plane"), [""])
sketch4.MapMode = "FlatFace"
sketch4.AttachmentOffset = App.Placement(V(0, 0, 45), App.Rotation())
sketch4.addGeometry(Part.Circle(V(0, 0, 0), V(0, 0, 1), 23.75), False)
sketch4.addGeometry(Part.Circle(V(0, 0, 0), V(0, 0, 1), 22.5), False)
sketch4.addConstraint(Sketcher.Constraint("Coincident", 0, 3, -1, 1))
sketch4.addConstraint(Sketcher.Constraint("Coincident", 1, 3, -1, 1))
sketch4.addConstraint(Sketcher.Constraint("Diameter", 1, 45.0))
sketch4.addConstraint(Sketcher.Constraint("Diameter", 0, 47.5))
pad4 = body.newObject("PartDesign::Pad", "Pad003")
pad4.Profile = sketch4
pad4.Length = 5

doc.recompute()
